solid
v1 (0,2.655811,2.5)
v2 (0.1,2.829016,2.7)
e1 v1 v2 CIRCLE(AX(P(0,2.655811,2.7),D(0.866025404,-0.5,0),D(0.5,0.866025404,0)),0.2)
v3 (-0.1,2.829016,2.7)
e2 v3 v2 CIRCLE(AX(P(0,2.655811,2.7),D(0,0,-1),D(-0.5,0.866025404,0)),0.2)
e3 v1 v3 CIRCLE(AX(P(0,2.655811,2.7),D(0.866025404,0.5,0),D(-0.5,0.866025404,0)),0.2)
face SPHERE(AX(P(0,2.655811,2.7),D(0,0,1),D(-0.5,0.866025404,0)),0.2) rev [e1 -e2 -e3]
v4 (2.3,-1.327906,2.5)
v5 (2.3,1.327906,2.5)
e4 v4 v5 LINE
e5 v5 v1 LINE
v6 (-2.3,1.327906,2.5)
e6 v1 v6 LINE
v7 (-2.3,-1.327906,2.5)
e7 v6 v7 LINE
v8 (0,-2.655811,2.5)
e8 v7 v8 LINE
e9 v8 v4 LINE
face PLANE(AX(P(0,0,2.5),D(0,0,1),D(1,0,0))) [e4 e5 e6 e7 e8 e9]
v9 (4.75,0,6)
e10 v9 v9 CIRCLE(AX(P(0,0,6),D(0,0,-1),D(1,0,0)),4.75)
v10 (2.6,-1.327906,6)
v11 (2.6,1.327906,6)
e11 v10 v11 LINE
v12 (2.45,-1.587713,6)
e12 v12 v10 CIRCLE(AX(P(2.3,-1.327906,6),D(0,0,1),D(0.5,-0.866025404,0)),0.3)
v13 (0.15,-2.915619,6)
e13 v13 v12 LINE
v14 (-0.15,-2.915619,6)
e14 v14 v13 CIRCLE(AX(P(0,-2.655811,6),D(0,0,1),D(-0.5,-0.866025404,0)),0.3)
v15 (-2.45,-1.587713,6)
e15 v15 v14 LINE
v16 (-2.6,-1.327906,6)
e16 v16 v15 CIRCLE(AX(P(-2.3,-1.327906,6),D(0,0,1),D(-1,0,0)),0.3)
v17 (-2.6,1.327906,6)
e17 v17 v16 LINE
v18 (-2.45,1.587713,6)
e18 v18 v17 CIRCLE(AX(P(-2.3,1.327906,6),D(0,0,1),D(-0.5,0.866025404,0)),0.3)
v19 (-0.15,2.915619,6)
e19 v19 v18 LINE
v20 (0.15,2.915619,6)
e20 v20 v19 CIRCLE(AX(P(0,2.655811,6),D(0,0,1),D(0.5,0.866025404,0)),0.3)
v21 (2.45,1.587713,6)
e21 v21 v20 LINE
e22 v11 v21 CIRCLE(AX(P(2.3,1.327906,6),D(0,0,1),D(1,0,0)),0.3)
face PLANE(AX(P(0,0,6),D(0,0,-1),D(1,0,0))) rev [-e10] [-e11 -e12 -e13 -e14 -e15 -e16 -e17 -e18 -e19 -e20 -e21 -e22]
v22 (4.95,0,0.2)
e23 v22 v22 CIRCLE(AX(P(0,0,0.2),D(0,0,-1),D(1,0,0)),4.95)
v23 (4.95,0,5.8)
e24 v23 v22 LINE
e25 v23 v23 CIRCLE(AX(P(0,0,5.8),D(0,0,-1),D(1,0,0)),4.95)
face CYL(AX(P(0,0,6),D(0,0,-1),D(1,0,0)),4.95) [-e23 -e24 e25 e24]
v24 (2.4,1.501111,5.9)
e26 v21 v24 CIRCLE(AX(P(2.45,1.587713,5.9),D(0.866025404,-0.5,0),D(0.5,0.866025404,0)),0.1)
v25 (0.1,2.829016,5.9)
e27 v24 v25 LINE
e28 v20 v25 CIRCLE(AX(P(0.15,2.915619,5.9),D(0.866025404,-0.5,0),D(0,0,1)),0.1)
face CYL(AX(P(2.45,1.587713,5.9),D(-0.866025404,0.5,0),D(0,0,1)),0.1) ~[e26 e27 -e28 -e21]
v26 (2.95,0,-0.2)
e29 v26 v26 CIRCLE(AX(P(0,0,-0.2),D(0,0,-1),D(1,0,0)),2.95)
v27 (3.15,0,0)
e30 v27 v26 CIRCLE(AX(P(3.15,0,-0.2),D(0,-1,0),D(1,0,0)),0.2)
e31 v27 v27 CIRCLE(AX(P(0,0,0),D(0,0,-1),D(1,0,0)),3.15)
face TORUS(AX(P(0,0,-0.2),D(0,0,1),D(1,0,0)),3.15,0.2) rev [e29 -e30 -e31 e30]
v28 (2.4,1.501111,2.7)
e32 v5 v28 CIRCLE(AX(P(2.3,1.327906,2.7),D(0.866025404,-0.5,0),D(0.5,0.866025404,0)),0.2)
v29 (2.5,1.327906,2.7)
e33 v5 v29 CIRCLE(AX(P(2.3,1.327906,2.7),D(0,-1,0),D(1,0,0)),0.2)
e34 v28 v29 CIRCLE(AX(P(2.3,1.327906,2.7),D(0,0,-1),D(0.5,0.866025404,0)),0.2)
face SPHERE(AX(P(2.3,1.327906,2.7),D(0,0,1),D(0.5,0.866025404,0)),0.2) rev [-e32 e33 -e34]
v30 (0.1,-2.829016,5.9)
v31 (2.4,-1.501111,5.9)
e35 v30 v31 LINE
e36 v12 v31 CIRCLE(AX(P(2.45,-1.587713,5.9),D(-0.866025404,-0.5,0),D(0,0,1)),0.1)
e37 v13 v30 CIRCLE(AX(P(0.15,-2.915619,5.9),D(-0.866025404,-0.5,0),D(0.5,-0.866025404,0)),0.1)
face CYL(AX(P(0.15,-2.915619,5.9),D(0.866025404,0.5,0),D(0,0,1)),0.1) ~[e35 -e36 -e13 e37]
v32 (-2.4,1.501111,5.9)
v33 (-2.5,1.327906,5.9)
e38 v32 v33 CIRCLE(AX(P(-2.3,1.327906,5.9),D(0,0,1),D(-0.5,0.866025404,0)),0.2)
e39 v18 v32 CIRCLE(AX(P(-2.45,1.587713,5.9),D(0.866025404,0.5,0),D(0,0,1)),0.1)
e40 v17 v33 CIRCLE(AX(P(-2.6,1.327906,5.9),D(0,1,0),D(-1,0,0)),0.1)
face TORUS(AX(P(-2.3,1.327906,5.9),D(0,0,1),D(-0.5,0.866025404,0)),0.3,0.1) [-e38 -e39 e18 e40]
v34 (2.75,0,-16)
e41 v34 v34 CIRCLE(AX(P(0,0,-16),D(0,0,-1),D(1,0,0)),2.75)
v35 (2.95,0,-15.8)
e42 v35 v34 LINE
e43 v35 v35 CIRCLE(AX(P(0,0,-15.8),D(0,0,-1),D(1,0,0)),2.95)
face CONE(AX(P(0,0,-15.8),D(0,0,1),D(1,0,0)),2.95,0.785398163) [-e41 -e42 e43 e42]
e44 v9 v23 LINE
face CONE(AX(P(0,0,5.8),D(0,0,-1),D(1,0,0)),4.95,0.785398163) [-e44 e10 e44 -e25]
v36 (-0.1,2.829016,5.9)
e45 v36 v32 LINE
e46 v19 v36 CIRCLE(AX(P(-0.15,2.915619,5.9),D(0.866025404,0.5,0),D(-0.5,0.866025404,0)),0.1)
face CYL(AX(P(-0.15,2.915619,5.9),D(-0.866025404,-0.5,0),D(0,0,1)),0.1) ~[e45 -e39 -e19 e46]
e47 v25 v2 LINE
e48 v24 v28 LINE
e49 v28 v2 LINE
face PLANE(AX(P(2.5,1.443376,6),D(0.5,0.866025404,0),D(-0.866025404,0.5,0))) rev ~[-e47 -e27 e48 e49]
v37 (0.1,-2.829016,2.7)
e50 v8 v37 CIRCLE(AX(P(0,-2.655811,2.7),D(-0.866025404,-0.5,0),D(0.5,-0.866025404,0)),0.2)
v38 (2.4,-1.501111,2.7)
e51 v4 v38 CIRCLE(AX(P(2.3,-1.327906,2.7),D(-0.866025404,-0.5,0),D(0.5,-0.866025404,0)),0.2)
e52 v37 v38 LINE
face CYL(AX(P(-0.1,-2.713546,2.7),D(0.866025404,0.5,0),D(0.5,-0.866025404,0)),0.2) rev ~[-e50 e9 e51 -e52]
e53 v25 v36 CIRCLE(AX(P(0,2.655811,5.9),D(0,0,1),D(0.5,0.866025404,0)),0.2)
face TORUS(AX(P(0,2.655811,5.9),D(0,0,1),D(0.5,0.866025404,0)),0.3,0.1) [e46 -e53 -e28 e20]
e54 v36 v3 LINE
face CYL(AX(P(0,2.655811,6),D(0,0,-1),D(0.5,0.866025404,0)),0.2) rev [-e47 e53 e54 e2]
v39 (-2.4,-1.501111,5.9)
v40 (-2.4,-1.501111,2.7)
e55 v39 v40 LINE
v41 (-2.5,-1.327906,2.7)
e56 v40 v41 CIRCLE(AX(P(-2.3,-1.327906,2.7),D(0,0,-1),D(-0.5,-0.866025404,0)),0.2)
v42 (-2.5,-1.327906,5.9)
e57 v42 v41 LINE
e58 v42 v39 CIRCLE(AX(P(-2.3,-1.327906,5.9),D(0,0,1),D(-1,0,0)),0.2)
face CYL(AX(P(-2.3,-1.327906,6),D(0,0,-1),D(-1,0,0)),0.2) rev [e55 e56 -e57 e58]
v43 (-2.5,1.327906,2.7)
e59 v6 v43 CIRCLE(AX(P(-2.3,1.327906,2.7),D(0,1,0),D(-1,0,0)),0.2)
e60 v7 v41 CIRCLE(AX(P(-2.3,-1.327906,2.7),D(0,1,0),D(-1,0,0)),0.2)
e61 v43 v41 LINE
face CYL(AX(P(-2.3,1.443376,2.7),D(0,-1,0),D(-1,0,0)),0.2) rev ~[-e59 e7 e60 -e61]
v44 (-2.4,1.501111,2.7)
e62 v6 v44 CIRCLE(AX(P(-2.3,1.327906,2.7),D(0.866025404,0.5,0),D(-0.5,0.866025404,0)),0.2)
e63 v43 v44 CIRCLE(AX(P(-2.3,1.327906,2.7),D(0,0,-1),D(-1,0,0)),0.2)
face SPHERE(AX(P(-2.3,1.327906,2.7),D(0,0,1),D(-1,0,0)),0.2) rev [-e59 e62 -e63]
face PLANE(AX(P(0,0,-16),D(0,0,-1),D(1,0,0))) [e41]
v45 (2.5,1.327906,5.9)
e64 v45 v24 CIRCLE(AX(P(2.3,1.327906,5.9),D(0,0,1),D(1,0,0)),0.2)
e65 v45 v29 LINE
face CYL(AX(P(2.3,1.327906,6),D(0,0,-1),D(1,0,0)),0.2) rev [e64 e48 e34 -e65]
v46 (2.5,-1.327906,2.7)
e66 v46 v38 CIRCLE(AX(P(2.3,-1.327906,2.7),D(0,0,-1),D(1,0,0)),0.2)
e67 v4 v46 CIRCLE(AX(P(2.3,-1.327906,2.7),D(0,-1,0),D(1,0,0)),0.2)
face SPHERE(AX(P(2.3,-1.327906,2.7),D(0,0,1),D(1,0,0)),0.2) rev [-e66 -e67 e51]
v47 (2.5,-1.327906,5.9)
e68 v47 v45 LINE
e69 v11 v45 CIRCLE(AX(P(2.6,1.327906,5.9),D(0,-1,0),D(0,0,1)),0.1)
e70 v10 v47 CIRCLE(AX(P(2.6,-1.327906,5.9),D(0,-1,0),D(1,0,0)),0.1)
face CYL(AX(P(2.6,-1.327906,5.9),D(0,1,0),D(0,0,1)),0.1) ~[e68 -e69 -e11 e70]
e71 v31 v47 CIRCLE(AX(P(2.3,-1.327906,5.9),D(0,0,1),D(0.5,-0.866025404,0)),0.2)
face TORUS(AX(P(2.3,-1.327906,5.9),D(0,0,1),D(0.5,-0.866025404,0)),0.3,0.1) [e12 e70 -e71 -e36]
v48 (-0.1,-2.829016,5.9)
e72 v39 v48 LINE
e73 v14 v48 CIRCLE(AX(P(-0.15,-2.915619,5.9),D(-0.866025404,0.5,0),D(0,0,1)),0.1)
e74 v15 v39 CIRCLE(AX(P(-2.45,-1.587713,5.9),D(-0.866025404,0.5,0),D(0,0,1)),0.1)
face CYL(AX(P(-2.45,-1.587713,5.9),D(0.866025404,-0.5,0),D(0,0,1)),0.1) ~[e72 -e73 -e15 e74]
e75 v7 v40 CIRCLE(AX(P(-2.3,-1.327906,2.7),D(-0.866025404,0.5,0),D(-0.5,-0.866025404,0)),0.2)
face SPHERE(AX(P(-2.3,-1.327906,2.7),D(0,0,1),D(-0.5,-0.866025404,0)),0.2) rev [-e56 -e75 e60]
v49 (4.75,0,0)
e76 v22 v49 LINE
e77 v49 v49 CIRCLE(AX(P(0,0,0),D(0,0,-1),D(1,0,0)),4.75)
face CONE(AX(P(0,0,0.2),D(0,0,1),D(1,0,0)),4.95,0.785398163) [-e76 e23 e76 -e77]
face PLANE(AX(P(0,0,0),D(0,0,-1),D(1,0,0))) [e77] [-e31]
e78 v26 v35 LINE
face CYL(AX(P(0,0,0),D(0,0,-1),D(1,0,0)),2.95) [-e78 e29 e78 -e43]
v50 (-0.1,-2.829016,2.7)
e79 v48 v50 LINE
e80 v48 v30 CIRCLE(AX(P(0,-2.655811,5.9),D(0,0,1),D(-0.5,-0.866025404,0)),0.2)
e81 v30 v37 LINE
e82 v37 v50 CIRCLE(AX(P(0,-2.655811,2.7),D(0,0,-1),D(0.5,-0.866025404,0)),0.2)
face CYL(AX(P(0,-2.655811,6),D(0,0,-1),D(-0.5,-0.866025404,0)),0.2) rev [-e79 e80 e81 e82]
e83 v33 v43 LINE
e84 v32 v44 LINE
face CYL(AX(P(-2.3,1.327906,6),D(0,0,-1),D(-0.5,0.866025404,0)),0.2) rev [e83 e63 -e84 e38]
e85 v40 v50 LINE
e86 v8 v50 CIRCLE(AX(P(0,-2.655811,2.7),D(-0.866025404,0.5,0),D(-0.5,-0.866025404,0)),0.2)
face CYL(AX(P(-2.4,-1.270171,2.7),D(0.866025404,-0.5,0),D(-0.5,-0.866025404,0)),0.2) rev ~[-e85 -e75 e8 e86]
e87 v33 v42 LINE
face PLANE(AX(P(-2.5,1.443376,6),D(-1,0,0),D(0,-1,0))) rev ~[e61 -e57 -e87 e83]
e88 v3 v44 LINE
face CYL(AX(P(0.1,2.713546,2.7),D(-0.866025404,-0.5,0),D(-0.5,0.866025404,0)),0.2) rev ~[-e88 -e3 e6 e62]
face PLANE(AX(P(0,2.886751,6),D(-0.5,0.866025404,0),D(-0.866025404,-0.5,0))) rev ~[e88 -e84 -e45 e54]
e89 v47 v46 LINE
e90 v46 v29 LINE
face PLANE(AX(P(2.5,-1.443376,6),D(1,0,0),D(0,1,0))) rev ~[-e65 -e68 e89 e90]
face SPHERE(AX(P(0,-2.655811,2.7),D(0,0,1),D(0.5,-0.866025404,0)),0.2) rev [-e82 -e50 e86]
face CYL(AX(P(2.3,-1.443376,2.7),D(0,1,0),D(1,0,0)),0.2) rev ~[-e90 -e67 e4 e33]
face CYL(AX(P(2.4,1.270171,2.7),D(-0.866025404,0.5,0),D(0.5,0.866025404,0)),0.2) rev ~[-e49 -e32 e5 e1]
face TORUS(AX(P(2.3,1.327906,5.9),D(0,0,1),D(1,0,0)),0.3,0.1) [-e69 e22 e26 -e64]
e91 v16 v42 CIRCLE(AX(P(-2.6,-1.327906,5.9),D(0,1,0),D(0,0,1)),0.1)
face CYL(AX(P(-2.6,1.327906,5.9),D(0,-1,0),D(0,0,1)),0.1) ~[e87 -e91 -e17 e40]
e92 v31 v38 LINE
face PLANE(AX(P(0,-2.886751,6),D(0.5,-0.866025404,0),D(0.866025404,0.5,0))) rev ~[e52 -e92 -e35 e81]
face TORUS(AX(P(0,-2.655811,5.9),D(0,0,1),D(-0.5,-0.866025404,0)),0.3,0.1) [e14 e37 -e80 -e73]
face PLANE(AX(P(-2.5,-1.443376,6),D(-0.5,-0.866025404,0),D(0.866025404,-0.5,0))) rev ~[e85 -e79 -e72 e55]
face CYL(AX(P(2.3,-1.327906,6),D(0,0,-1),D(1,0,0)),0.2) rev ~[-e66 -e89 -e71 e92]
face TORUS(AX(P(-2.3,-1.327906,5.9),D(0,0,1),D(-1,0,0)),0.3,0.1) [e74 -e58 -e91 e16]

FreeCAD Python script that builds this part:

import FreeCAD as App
import Part
import Sketcher

V = App.Vector
Q = App.Units.Quantity


def edges_at(feature, points):
    """Names of the edges that pass closest to the given points."""
    edges = feature.Shape.Edges
    near = lambda p: min(range(len(edges)), key=lambda i: edges[i].distToShape(Part.Vertex(*p))[0])
    return sorted({f"Edge{near(p) + 1}" for p in points})


def add_polygon(sketch, points):
    """Adds a closed chain of lines whose ends are joined by coincident constraints."""
    first, n = sketch.GeometryCount, len(points)
    for a, b in zip(points, points[1:] + points[:1]):
        sketch.addGeometry(Part.LineSegment(App.Vector(*a, 0), App.Vector(*b, 0)), False)
    for i in range(n):
        sketch.addConstraint(Sketcher.Constraint("Coincident", first + i, 2, first + (i + 1) % n, 1))

doc = App.newDocument("Part")
body = doc.addObject("PartDesign::Body", "Body")

sketch1 = doc.addObject("Sketcher::SketchObject", "Sketch")
body.addObject(sketch1)
sketch1.AttachmentSupport = (doc.YZ_Plane, [""])
sketch1.MapMode = "FlatFace"
add_polygon(sketch1, [(5, 6), (0, 6), (0, -16), (3, -16), (3, 0), (5, 0)])
sketch1.addConstraint(Sketcher.Constraint("Horizontal", 0))
sketch1.addConstraint(Sketcher.Constraint("Vertical", 1))
sketch1.addConstraint(Sketcher.Constraint("Horizontal", 2))
sketch1.addConstraint(Sketcher.Constraint("Vertical", 3))
sketch1.addConstraint(Sketcher.Constraint("Horizontal", 4))
sketch1.addConstraint(Sketcher.Constraint("Vertical", 5))
sketch1.addConstraint(Sketcher.Constraint("PointOnObject", 0, 2, -2))
sketch1.addConstraint(Sketcher.Constraint("PointOnObject", 3, 2, -1))
sketch1.addConstraint(Sketcher.Constraint("DistanceX", 4, 1, 4, 2, 2.0))
sketch1.addConstraint(Sketcher.Constraint("DistanceY", 1, 2, 1, 1, 22.0))
sketch1.addConstraint(Sketcher.Constraint("DistanceY", 3, 1, 3, 2, 16.0))
sketch1.addConstraint(Sketcher.Constraint("DistanceX", 0, 2, 0, 1, 4.95))
revolution = doc.addObject("PartDesign::Revolution", "Revolution")
body.addObject(revolution)
revolution.Profile = sketch1
revolution.ReferenceAxis = (sketch1, ["V_Axis"])
revolution.Angle = 360

sketch2 = doc.addObject("Sketcher::SketchObject", "Sketch001")
body.addObject(sketch2)
sketch2.AttachmentSupport = (doc.XY_Plane, [""])
sketch2.MapMode = "FlatFace"
sketch2.AttachmentOffset = App.Placement(V(0, 0, 6), App.Rotation())
add_polygon(sketch2, [(2.5, -1.4), (2.5, 1.4), (0, 2.9), (-2.5, 1.4), (-2.5, -1.4), (0, -2.9)])
sketch2.addConstraint(Sketcher.Constraint("Vertical", 0))
sketch2.addConstraint(Sketcher.Constraint("Vertical", 3))
sketch2.addConstraint(Sketcher.Constraint("Symmetric", 0, 2, 3, 2, -1, 1))
sketch2.addConstraint(Sketcher.Constraint("Symmetric", 1, 2, 4, 2, -1, 1))
sketch2.addConstraint(Sketcher.Constraint("PointOnObject", 1, 2, -2))
sketch2.addConstraint(Sketcher.Constraint("Parallel", 2, 5))
sketch2.addConstraint(Sketcher.Constraint("Horizontal", 0, 2, 2, 2))
sketch2.addConstraint(Sketcher.Constraint("Angle", 1, Q("150 deg")))
sketch2.addConstraint(Sketcher.Constraint("DistanceX", 2, 2, 0, 2, 5.0))
sketch2.addConstraint(Sketcher.Constraint("DistanceY", 0, 1, 0, 2, 2.886751))
pocket1 = doc.addObject("PartDesign::Pocket", "Pocket")
body.addObject(pocket1)
pocket1.Profile = sketch2
pocket1.Length = 3.5
doc.recompute()

chamfer = doc.addObject("PartDesign::Chamfer", "Chamfer")
body.addObject(chamfer)
chamfer.Base = (pocket1, edges_at(pocket1, [(-2.95, 0, -16), (-4.95, 0, 0), (-4.95, 0, 6)]))
chamfer.Size = 0.2
doc.recompute()

fillet = doc.addObject("PartDesign::Fillet", "Fillet")
body.addObject(fillet)
fillet.Base = (chamfer, edges_at(chamfer, [
    (1.25, -2.165, 2.5),
    (2.5, -1.443, 4.25),
    (-1.25, -2.165, 2.5),
    (0, -2.887, 4.25),
    (-2.5, 0, 2.5),
    (-2.5, -1.443, 4.25),
    (-1.25, 2.165, 2.5),
    (-2.5, 1.443, 4.25),
    (1.25, 2.165, 2.5),
    (0, 2.887, 4.25),
    (2.5, 0, 2.5),
    (2.5, 1.443, 4.25),
    (-2.95, 0, 0),
]))
fillet.Radius = 0.2
doc.recompute()

fillet2 = doc.addObject("PartDesign::Fillet", "Fillet001")
body.addObject(fillet2)
fillet2.Base = (fillet, edges_at(fillet, [
    (-1.25, -2.165, 6),
    (-2.5, 0, 6),
    (-1.25, 2.165, 6),
    (1.25, 2.165, 6),
    (2.5, 0, 6),
    (1.25, -2.165, 6),
    (-2.473, -1.428, 6),
    (0, -2.856, 6),
    (2.473, -1.428, 6),
    (2.473, 1.428, 6),
    (0, 2.856, 6),
    (-2.473, 1.428, 6),
]))
fillet2.Radius = 0.1

doc.recompute()
